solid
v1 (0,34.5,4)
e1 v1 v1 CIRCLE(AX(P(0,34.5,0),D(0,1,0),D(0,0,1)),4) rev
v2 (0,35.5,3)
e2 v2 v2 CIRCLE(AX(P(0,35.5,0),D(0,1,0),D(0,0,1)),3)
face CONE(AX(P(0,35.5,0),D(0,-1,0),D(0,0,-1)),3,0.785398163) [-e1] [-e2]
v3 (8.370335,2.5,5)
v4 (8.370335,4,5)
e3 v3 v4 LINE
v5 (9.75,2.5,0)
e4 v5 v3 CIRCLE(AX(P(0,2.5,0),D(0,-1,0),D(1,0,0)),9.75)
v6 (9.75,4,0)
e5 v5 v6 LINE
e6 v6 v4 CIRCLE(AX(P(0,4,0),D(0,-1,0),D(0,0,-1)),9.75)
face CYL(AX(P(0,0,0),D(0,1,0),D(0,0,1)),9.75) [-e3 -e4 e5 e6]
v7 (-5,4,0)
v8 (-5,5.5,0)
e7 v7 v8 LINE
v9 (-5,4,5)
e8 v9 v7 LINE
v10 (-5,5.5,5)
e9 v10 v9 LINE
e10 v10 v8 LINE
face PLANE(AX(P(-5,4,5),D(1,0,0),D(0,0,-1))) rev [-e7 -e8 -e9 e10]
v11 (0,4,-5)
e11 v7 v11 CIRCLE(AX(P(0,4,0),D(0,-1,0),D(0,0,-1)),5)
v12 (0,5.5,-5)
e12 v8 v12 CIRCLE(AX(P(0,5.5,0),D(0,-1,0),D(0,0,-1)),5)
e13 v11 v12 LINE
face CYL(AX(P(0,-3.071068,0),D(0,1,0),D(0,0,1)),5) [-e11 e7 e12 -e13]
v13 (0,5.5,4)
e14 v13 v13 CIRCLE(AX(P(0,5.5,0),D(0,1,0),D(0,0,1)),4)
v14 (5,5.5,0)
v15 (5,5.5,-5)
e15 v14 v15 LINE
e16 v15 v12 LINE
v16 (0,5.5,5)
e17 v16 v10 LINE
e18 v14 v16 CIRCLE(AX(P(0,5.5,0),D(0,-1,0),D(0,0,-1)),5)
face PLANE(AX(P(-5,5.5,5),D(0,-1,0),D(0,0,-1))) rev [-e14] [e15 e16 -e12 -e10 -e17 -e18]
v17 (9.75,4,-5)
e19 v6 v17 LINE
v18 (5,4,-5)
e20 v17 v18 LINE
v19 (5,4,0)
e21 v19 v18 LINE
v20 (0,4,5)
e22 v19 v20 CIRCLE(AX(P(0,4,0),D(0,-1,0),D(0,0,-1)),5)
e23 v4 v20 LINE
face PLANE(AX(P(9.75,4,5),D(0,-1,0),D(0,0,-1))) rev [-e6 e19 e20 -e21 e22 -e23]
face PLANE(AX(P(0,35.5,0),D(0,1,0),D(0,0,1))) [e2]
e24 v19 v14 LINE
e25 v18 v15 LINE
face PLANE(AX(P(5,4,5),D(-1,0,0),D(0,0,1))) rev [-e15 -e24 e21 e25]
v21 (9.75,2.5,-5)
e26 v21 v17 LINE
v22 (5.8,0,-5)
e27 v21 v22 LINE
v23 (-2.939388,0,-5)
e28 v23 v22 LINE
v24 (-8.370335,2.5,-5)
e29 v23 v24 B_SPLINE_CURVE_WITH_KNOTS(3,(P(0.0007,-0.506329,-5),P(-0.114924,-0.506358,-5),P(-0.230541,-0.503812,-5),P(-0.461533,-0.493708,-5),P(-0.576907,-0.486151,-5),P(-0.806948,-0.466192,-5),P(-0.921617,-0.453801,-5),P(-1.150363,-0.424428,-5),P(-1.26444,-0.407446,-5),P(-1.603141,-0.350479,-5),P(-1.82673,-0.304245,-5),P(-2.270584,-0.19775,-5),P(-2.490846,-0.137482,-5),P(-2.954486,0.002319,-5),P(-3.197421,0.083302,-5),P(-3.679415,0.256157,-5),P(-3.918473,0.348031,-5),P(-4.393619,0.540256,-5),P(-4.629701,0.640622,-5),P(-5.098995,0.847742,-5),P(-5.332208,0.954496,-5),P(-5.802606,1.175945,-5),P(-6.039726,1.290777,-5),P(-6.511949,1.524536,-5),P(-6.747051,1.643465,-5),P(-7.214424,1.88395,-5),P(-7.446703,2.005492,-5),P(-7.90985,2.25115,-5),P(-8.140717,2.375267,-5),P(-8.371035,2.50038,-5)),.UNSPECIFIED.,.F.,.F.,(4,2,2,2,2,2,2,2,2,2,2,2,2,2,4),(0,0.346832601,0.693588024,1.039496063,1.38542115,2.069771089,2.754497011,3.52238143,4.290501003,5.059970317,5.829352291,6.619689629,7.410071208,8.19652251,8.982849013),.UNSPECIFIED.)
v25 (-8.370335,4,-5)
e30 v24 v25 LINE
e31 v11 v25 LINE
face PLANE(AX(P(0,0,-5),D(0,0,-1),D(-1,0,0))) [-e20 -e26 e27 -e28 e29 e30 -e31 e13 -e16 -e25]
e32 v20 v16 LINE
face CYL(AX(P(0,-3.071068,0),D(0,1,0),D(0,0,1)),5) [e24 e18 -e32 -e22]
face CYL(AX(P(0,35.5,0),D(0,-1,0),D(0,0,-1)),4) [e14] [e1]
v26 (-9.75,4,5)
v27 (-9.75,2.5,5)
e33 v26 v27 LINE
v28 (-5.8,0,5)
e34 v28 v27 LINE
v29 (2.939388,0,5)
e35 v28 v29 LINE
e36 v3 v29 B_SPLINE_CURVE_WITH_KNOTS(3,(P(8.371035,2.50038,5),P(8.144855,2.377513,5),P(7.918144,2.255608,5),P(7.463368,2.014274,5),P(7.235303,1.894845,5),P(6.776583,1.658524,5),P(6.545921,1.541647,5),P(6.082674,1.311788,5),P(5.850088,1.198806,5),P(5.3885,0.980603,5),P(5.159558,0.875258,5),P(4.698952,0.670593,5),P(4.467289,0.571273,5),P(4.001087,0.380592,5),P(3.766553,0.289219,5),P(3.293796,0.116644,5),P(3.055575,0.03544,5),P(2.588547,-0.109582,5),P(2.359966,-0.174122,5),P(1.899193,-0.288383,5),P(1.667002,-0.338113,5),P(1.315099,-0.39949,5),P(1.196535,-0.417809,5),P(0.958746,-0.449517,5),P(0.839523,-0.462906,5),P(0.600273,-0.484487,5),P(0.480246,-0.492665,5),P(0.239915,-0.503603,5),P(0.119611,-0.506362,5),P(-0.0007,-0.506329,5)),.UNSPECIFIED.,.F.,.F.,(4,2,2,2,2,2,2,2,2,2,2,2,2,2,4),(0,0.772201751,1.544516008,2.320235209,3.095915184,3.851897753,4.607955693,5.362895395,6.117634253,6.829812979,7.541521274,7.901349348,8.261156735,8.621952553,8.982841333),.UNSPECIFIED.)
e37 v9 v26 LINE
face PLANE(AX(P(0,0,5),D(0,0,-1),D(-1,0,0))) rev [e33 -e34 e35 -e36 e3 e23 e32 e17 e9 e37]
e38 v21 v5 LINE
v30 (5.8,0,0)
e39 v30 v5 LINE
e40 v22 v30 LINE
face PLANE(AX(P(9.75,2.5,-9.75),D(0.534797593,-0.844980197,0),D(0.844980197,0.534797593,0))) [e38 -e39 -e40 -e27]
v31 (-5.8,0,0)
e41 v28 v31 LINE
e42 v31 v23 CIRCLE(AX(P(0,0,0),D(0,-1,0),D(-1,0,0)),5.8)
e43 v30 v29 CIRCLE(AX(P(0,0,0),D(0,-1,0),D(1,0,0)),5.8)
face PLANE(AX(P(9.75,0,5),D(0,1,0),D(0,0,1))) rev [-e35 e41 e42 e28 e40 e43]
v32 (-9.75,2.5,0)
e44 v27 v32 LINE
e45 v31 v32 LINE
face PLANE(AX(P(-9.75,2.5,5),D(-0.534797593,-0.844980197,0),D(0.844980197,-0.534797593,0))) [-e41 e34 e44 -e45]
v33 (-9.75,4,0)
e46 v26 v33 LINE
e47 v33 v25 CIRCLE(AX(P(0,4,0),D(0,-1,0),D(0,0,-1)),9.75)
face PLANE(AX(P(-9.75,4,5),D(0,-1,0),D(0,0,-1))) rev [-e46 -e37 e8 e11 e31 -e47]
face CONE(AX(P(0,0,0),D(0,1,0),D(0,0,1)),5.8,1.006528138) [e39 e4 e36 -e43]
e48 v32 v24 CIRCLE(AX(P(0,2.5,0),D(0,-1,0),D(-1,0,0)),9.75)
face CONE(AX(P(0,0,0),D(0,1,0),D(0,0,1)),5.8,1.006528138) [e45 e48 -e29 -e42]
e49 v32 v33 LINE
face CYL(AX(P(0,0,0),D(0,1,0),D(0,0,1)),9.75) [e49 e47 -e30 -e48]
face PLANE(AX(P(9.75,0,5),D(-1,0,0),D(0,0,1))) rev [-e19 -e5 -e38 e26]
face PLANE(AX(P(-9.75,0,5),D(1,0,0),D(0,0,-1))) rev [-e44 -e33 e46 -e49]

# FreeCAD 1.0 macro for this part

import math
import FreeCAD as App
import Part
import Sketcher
Q = App.Units.Quantity


def edges_at(feature, points):
    """Names of the edges that pass closest to the given points."""
    edges = feature.Shape.Edges
    near = lambda p: min(range(len(edges)), key=lambda i: edges[i].distToShape(Part.Vertex(*p))[0])
    return sorted({f"Edge{near(p) + 1}" for p in points})

doc = App.newDocument("Part")
body = doc.addObject("PartDesign::Body", "Body")

# Sketch on XY plane
sketch1 = body.newObject("Sketcher::SketchObject", "Sketch")
sketch1.AttachmentSupport = (doc.getObject("XY_Plane"), [""])
sketch1.MapMode = "FlatFace"
sketch1.addGeometry([
    Part.LineSegment(App.Vector(-9.8, 0, 0), App.Vector(9.8, 0, 0)),  # 0
    Part.LineSegment(App.Vector(9.8, 0, 0), App.Vector(9.8, 4, 0)),  # 1
    Part.LineSegment(App.Vector(9.8, 4, 0), App.Vector(5, 4, 0)),  # 2
    Part.LineSegment(App.Vector(5, 4, 0), App.Vector(5, 5.5, 0)),  # 3
    Part.LineSegment(App.Vector(5, 5.5, 0), App.Vector(-5, 5.5, 0)),  # 4
    Part.LineSegment(App.Vector(-5, 5.5, 0), App.Vector(-5, 4, 0)),  # 5
    Part.LineSegment(App.Vector(-5, 4, 0), App.Vector(-9.8, 4, 0)),  # 6
    Part.LineSegment(App.Vector(-9.8, 4, 0), App.Vector(-9.8, 0, 0)),  # 7
], False)
sketch1.addConstraint([
    Sketcher.Constraint("Coincident", 0, 2, 1, 1),
    Sketcher.Constraint("Coincident", 1, 2, 2, 1),
    Sketcher.Constraint("Coincident", 2, 2, 3, 1),
    Sketcher.Constraint("Coincident", 3, 2, 4, 1),
    Sketcher.Constraint("Coincident", 4, 2, 5, 1),
    Sketcher.Constraint("Coincident", 5, 2, 6, 1),
    Sketcher.Constraint("Coincident", 6, 2, 7, 1),
    Sketcher.Constraint("Coincident", 7, 2, 0, 1),
    Sketcher.Constraint("Horizontal", 0),
    Sketcher.Constraint("Vertical", 1),
    Sketcher.Constraint("Horizontal", 2),
    Sketcher.Constraint("Vertical", 3),
    Sketcher.Constraint("Horizontal", 4),
    Sketcher.Constraint("Vertical", 5),
    Sketcher.Constraint("Horizontal", 6),
    Sketcher.Constraint("Vertical", 7),
    Sketcher.Constraint("Symmetric", 0, 2, 7, 2, -1, 1),
    Sketcher.Constraint("Symmetric", 2, 2, 5, 2, -2),
    Sketcher.Constraint("DistanceX", 4, 2, 4, 1, Q("10 mm")),
    Sketcher.Constraint("DistanceY", 1, 1, 1, 2, Q("4 mm")),
    Sketcher.Constraint("DistanceX", 0, 1, 0, 2, Q("19.5 mm")),
    Sketcher.Constraint("DistanceY", 3, 1, 3, 2, Q("1.5 mm")),
])
pad1 = body.newObject("PartDesign::Pad", "Pad")
pad1.Profile = sketch1
pad1.Length = 10
pad1.Midplane = True

# Sketch on XZ plane
sketch2 = body.newObject("Sketcher::SketchObject", "Sketch001")
sketch2.AttachmentSupport = (doc.getObject("XZ_Plane"), [""])
sketch2.MapMode = "FlatFace"
sketch2.AttachmentOffset = App.Placement(App.Vector(0, 0, -5.5), App.Rotation())
sketch2.addGeometry([
    Part.LineSegment(App.Vector(-5, -5, 0), App.Vector(-5, 0, 0)),  # 0
    Part.ArcOfCircle(Part.Circle(App.Vector(0, 0, 0), App.Vector(0, 0, 1), 5), math.radians(180), math.radians(270)),  # 1
    Part.LineSegment(App.Vector(0, -5, 0), App.Vector(-5, -5, 0)),  # 2
    Part.LineSegment(App.Vector(0, 5, 0), App.Vector(5, 5, 0)),  # 3
    Part.LineSegment(App.Vector(5, 5, 0), App.Vector(5, 0, 0)),  # 4
    Part.ArcOfCircle(Part.Circle(App.Vector(0, 0, 0), App.Vector(0, 0, 1), 5), math.radians(0), math.radians(90)),  # 5
], False)
sketch2.addConstraint([
    Sketcher.Constraint("Tangent", 0, 2, 1, 1),
    Sketcher.Constraint("Tangent", 1, 2, 2, 1),
    Sketcher.Constraint("Coincident", 2, 2, 0, 1),
    Sketcher.Constraint("Coincident", 3, 2, 4, 1),
    Sketcher.Constraint("Tangent", 4, 2, 5, 1),
    Sketcher.Constraint("Tangent", 5, 2, 3, 1),
    Sketcher.Constraint("Vertical", 0),
    Sketcher.Constraint("Horizontal", 2),
    Sketcher.Constraint("Horizontal", 3),
    Sketcher.Constraint("Vertical", 4),
    Sketcher.Constraint("Coincident", 1, 3, -1, 1),
    Sketcher.Constraint("Coincident", 5, 3, -1, 1),
    Sketcher.Constraint("Equal", 1, 5),
    Sketcher.Constraint("Radius", 1, Q("5 mm")),
])
pocket1 = body.newObject("PartDesign::Pocket", "Pocket")
pocket1.Profile = sketch2
pocket1.Length = 1.5
pocket1.Reversed = True

# Sketch on XZ plane
sketch3 = body.newObject("Sketcher::SketchObject", "Sketch002")
sketch3.AttachmentSupport = (doc.getObject("XZ_Plane"), [""])
sketch3.MapMode = "FlatFace"
sketch3.AttachmentOffset = App.Placement(App.Vector(0, 0, -5.5), App.Rotation())
sketch3.addGeometry(Part.Circle(App.Vector(0, 0, 0), App.Vector(0, 0, 1), 4), False)
sketch3.addConstraint([
    Sketcher.Constraint("Coincident", 0, 3, -1, 1),
    Sketcher.Constraint("Diameter", 0, Q("8 mm")),
])
pad2 = body.newObject("PartDesign::Pad", "Pad001")
pad2.Profile = sketch3
pad2.Length = 30
pad2.Reversed = True

# Sketch on XZ plane
sketch4 = body.newObject("Sketcher::SketchObject", "Sketch003")
sketch4.AttachmentSupport = (doc.getObject("XZ_Plane"), [""])
sketch4.MapMode = "FlatFace"
sketch4.AttachmentOffset = App.Placement(App.Vector(0, 0, -4), App.Rotation())
sketch4.addGeometry([
    Part.LineSegment(App.Vector(-8.4, -5, 0), App.Vector(-9.8, -5, 0)),  # 0
    Part.LineSegment(App.Vector(-9.8, -5, 0), App.Vector(-9.8, 0, 0)),  # 1
    Part.ArcOfCircle(Part.Circle(App.Vector(0, 0, 0), App.Vector(0, 0, 1), 9.7), math.radians(180), math.radians(211)),  # 2
    Part.LineSegment(App.Vector(8.4, 5, 0), App.Vector(9.8, 5, 0)),  # 3
    Part.LineSegment(App.Vector(9.8, 5, 0), App.Vector(9.8, 0, 0)),  # 4
    Part.ArcOfCircle(Part.Circle(App.Vector(0, 0, 0), App.Vector(0, 0, 1), 9.7), math.radians(0), math.radians(31)),  # 5
], False)
sketch4.addConstraint([
    Sketcher.Constraint("Coincident", 0, 2, 1, 1),
    Sketcher.Constraint("Tangent", 1, 2, 2, 1),
    Sketcher.Constraint("Coincident", 2, 2, 0, 1),
    Sketcher.Constraint("Coincident", 3, 2, 4, 1),
    Sketcher.Constraint("Tangent", 4, 2, 5, 1),
    Sketcher.Constraint("Coincident", 5, 2, 3, 1),
    Sketcher.Constraint("Horizontal", 0),
    Sketcher.Constraint("Vertical", 1),
    Sketcher.Constraint("Horizontal", 3),
    Sketcher.Constraint("Vertical", 4),
    Sketcher.Constraint("Coincident", 2, 3, -1, 1),
    Sketcher.Constraint("Coincident", 5, 3, -1, 1),
    Sketcher.Constraint("Equal", 2, 5),
    Sketcher.Constraint("Equal", 0, 3),
    Sketcher.Constraint("DistanceY", 1, 1, 1, 2, Q("5 mm")),
    Sketcher.Constraint("Radius", 2, Q("9.75 mm")),
])
pocket2 = body.newObject("PartDesign::Pocket", "Pocket001")
pocket2.Profile = sketch4
pocket2.Type = "ThroughAll"
pocket2.Reversed = True

# Sketch on XY plane
sketch5 = body.newObject("Sketcher::SketchObject", "Sketch004")
sketch5.AttachmentSupport = (doc.getObject("XY_Plane"), [""])
sketch5.MapMode = "FlatFace"
sketch5.AttachmentOffset = App.Placement(App.Vector(0, 0, 5), App.Rotation())
sketch5.addGeometry([
    Part.LineSegment(App.Vector(-5.8, 0, 0), App.Vector(-9.8, 2.5, 0)),
    Part.LineSegment(App.Vector(-9.8, 2.5, 0), App.Vector(-9.8, 0, 0)),
    Part.LineSegment(App.Vector(-9.8, 0, 0), App.Vector(-5.8, 0, 0)),
], False)
sketch5.addConstraint([
    Sketcher.Constraint("Coincident", 0, 2, 1, 1),
    Sketcher.Constraint("Coincident", 1, 2, 2, 1),
    Sketcher.Constraint("Coincident", 2, 2, 0, 1),
    Sketcher.Constraint("Vertical", 1),
    Sketcher.Constraint("Horizontal", 2),
    Sketcher.Constraint("PointOnObject", 1, 2, -1),
    Sketcher.Constraint("DistanceY", 1, 2, 1, 1, Q("2.5 mm")),
    Sketcher.Constraint("DistanceX", 2, 1, 2, 2, Q("3.95 mm")),
    Sketcher.Constraint("DistanceX", 2, 2, -1, 1, Q("5.8 mm")),
])

# Sketch on XZ plane
sketch6 = body.newObject("Sketcher::SketchObject", "Sketch005")
sketch6.AttachmentSupport = (doc.getObject("XZ_Plane"), [""])
sketch6.MapMode = "FlatFace"
sketch6.addGeometry([
    Part.LineSegment(App.Vector(0, -10, 0), App.Vector(10, -10, 0)),  # 0
    Part.LineSegment(App.Vector(10, -10, 0), App.Vector(10, 0, 0)),  # 1
    Part.ArcOfCircle(Part.Circle(App.Vector(0, 0, 0), App.Vector(0, 0, 1), 10), math.radians(0), math.radians(90)),  # 2
    Part.LineSegment(App.Vector(0, 10, 0), App.Vector(-10, 10, 0)),  # 3
    Part.LineSegment(App.Vector(-10, 10, 0), App.Vector(-10, 0, 0)),  # 4
    Part.ArcOfCircle(Part.Circle(App.Vector(0, 0, 0), App.Vector(0, 0, 1), 10), math.radians(180), math.radians(270)),  # 5
], False)
sketch6.addConstraint([
    Sketcher.Constraint("Coincident", 0, 2, 1, 1),
    Sketcher.Constraint("Tangent", 1, 2, 2, 1),
    Sketcher.Constraint("Tangent", 2, 2, 3, 1),
    Sketcher.Constraint("Coincident", 3, 2, 4, 1),
    Sketcher.Constraint("Tangent", 4, 2, 5, 1),
    Sketcher.Constraint("Tangent", 5, 2, 0, 1),
    Sketcher.Constraint("Horizontal", 0),
    Sketcher.Constraint("Vertical", 1),
    Sketcher.Constraint("Horizontal", 3),
    Sketcher.Constraint("Vertical", 4),
    Sketcher.Constraint("Coincident", 2, 3, -1, 1),
    Sketcher.Constraint("Coincident", 5, 3, -1, 1),
    Sketcher.Constraint("Equal", 2, 5),
    Sketcher.Constraint("Radius", 2, Q("9.75 mm")),
])
doc.recompute()

subtractivepipe = body.newObject("PartDesign::SubtractivePipe", "SubtractivePipe")
subtractivepipe.Profile = sketch5
subtractivepipe.Spine = (sketch6, ["Edge1", "Edge2", "Edge3", "Edge4", "Edge5", "Edge6"])
subtractivepipe.Transition = "Right corner"
doc.recompute()

chamfer = body.newObject("PartDesign::Chamfer", "Chamfer")
chamfer.Base = (subtractivepipe, edges_at(subtractivepipe, [(0, 35.5, -4)]))
chamfer.Size = 1

doc.recompute()
